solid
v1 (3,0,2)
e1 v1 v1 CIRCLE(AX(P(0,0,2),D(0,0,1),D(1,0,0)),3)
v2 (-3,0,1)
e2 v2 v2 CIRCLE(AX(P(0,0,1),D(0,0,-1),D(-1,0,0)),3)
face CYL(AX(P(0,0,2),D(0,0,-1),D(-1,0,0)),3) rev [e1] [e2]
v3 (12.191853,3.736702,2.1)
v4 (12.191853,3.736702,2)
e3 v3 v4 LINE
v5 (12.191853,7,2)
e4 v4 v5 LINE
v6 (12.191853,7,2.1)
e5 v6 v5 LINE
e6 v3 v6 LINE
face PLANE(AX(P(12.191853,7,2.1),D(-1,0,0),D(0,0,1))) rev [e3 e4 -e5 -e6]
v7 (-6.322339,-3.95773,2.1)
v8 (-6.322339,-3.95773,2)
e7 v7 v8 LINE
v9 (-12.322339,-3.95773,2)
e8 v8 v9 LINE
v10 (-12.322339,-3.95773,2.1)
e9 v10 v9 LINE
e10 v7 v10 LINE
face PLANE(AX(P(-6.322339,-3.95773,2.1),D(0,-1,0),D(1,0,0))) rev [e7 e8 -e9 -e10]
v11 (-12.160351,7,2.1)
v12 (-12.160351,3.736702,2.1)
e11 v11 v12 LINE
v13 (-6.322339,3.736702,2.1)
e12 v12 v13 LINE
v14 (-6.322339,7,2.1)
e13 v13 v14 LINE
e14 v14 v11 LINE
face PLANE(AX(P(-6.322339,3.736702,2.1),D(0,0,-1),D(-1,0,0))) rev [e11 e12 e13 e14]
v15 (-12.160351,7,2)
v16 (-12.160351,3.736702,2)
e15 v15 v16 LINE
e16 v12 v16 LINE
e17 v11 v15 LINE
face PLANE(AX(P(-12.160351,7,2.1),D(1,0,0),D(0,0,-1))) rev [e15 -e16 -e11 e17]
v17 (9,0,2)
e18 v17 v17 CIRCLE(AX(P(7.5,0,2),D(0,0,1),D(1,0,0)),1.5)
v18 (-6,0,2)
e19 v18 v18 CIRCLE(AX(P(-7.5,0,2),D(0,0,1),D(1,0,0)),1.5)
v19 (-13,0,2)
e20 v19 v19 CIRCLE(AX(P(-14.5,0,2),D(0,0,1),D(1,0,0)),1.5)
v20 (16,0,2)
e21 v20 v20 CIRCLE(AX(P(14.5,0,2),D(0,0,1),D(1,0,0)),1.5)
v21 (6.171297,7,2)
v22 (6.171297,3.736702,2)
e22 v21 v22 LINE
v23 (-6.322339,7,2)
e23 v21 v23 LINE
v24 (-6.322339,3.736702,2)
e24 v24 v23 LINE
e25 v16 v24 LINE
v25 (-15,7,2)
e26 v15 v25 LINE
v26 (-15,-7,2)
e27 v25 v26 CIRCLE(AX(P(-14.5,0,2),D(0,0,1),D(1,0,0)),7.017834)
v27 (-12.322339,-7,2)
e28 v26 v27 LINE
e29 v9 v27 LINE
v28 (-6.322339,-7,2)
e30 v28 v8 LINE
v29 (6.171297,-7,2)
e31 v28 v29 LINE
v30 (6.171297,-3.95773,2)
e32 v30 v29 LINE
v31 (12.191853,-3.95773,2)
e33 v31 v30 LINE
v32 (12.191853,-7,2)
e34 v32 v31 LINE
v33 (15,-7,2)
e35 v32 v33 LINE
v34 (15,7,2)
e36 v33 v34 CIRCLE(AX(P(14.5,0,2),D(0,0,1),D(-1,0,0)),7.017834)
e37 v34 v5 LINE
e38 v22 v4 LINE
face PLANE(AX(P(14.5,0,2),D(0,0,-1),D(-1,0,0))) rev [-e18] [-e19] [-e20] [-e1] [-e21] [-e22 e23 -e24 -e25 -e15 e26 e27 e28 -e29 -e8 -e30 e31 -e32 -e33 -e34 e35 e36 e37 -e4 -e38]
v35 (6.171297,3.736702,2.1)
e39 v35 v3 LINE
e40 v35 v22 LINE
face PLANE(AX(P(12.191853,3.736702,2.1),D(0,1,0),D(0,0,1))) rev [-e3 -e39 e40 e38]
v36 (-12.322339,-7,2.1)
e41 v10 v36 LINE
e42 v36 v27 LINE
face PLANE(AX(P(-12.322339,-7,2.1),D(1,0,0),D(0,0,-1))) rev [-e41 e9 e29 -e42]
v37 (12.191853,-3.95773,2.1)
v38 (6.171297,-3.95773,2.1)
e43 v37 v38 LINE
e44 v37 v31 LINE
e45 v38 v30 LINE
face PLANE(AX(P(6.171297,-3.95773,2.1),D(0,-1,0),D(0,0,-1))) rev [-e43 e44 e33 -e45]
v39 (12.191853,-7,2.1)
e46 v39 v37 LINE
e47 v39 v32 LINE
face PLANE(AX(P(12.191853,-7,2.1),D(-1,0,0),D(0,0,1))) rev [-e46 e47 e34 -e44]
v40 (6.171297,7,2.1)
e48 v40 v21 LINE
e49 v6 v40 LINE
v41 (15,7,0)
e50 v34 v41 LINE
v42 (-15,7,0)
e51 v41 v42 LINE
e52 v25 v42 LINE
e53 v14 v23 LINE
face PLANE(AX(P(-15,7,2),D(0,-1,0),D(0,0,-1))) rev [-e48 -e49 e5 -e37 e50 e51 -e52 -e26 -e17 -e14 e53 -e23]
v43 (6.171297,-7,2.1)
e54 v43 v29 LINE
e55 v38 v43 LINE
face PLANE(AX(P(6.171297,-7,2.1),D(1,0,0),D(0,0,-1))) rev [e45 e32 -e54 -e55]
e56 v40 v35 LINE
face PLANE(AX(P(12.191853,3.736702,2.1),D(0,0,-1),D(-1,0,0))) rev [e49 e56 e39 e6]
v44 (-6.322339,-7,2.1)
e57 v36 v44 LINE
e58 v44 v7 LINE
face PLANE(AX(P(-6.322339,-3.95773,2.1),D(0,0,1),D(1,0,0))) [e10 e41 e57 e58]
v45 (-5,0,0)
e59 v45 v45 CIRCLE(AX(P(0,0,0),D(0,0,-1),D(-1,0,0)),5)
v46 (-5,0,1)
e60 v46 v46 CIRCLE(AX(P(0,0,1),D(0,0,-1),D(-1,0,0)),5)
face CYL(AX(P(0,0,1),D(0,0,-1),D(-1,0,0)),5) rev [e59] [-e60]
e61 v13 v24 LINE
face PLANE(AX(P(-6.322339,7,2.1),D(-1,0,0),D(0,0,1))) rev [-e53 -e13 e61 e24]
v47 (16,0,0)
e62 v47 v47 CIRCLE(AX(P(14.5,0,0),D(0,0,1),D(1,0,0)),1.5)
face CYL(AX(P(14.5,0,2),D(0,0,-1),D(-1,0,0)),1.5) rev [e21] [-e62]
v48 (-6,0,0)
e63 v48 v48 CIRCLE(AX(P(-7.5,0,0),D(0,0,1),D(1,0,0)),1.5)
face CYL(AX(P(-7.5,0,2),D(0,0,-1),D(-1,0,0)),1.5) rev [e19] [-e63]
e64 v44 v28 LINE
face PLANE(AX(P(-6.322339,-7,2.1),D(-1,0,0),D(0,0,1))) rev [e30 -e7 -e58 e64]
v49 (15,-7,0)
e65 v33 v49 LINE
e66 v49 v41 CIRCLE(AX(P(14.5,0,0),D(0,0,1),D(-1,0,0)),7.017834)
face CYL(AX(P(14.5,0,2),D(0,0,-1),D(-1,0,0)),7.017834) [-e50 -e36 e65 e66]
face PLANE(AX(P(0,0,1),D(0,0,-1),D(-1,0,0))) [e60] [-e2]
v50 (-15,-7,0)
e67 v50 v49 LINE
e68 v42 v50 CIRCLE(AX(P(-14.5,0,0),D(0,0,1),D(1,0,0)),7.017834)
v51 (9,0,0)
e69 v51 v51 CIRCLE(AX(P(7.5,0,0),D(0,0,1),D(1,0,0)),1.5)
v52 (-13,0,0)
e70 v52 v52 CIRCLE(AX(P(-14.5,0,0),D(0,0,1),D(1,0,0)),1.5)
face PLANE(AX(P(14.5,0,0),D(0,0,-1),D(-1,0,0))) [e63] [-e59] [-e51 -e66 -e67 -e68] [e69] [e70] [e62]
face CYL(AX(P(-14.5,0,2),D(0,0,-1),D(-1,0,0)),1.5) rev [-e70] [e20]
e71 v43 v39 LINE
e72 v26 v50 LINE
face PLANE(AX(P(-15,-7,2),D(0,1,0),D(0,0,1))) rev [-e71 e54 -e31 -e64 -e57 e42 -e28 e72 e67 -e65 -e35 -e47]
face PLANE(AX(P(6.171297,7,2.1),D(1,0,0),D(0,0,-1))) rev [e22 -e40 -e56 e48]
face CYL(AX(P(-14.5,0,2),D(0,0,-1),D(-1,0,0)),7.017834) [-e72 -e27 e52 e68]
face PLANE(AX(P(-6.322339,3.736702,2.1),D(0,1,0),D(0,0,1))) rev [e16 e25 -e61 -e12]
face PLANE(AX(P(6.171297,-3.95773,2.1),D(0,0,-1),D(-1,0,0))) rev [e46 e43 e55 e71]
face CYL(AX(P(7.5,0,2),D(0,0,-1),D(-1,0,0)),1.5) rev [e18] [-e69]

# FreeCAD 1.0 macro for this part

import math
import FreeCAD as App
import Part
import Sketcher

doc = App.newDocument("Part")
params = doc.addObject("Spreadsheet::Sheet", "Params")
for row, (alias, value) in enumerate([
    ("sketch1_diameter", "3 mm"),
    ("sketch1_diameter2", "6 mm"),
    ("sketch1_width", "30 mm"),
    ("pad1_length", "2 mm"),
    ("sketch2_width", "6 mm"),
    ("pad2_length", "0.1 mm"),
    ("sketch3_diameter", "10 mm"),
    ("pocket1_length", "1 mm"),
], start=1):
    params.set(f"A{row}", alias)
    params.set(f"B{row}", "=" + value)
    params.setAlias(f"B{row}", alias)

body = doc.addObject("PartDesign::Body", "Body")

sketch1 = body.newObject("Sketcher::SketchObject", "Sketch")
sketch1.AttachmentSupport = (doc.getObject("XY_Plane"), [""])
sketch1.MapMode = "FlatFace"
sketch1.addGeometry([
    Part.LineSegment(App.Vector(-15, -7, 0), App.Vector(15, -7, 0)),
    Part.ArcOfCircle(Part.Circle(App.Vector(14.5, 0, 0), App.Vector(0, 0, 1), 7), math.radians(-86), math.radians(86)),
    Part.LineSegment(App.Vector(15, 7, 0), App.Vector(-15, 7, 0)),
    Part.ArcOfCircle(Part.Circle(App.Vector(-14.5, 0, 0), App.Vector(0, 0, 1), 7), math.radians(94), math.radians(266)),
    Part.Circle(App.Vector(-14.5, 0, 0), App.Vector(0, 0, 1), 1.5),
    Part.Circle(App.Vector(-7.5, 0, 0), App.Vector(0, 0, 1), 1.5),
    Part.Circle(App.Vector(0, 0, 0), App.Vector(0, 0, 1), 3),
    Part.Circle(App.Vector(7.5, 0, 0), App.Vector(0, 0, 1), 1.5),
    Part.Circle(App.Vector(14.5, 0, 0), App.Vector(0, 0, 1), 1.5),
], False)
sketch1.addConstraint([
    Sketcher.Constraint("Coincident", 0, 2, 1, 1),
    Sketcher.Constraint("Coincident", 1, 2, 2, 1),
    Sketcher.Constraint("Coincident", 2, 2, 3, 1),
    Sketcher.Constraint("Coincident", 3, 2, 0, 1),
    Sketcher.Constraint("Horizontal", 0),
    Sketcher.Constraint("Horizontal", 2),
    Sketcher.Constraint("Coincident", 6, 3, -1, 1),
    Sketcher.Constraint("Coincident", 4, 3, 3, 3),
    Sketcher.Constraint("Coincident", 8, 3, 1, 3),
    Sketcher.Constraint("Equal", 1, 3),
    Sketcher.Constraint("Equal", 4, 5),
    Sketcher.Constraint("Equal", 5, 7),
    Sketcher.Constraint("Equal", 7, 8),
    Sketcher.Constraint("Symmetric", 1, 3, 3, 3, -1, 1),
    Sketcher.Constraint("Symmetric", 5, 3, 7, 3, -1, 1),
    Sketcher.Constraint("Symmetric", 0, 2, 1, 2, -1),
    Sketcher.Constraint("PointOnObject", 5, 3, -1),
    Sketcher.Constraint("Diameter", 4, 3.0),
    Sketcher.Constraint("Diameter", 6, 6.0),
    Sketcher.Constraint("DistanceX", 0, 1, 0, 2, 30.0),
    Sketcher.Constraint("DistanceY", 0, 2, -1, 1, 7.0),
    Sketcher.Constraint("DistanceX", 3, 3, 1, 3, 29.0),
    Sketcher.Constraint("DistanceX", 3, 3, 5, 3, 7.0),
])
sketch1.setExpression("Constraints[17]", "Params.sketch1_diameter")
sketch1.setExpression("Constraints[18]", "Params.sketch1_diameter2")
sketch1.setExpression("Constraints[19]", "Params.sketch1_width")
pad1 = body.newObject("PartDesign::Pad", "Pad")
pad1.Profile = sketch1
pad1.setExpression("Length", "Params.pad1_length")

sketch2 = body.newObject("Sketcher::SketchObject", "Sketch001")
sketch2.AttachmentSupport = (doc.getObject("XY_Plane"), [""])
sketch2.MapMode = "FlatFace"
sketch2.AttachmentOffset = App.Placement(App.Vector(0, 0, 2), App.Rotation())
sketch2.addGeometry([
    Part.LineSegment(App.Vector(6.2, -4, 0), App.Vector(6.2, -7, 0)),
    Part.LineSegment(App.Vector(6.2, -7, 0), App.Vector(12.2, -7, 0)),
    Part.LineSegment(App.Vector(12.2, -7, 0), App.Vector(12.2, -4, 0)),
    Part.LineSegment(App.Vector(12.2, -4, 0), App.Vector(6.2, -4, 0)),
    Part.LineSegment(App.Vector(6.2, 7, 0), App.Vector(6.2, 3.7, 0)),
    Part.LineSegment(App.Vector(6.2, 3.7, 0), App.Vector(12.2, 3.7, 0)),
    Part.LineSegment(App.Vector(12.2, 3.7, 0), App.Vector(12.2, 7, 0)),
    Part.LineSegment(App.Vector(12.2, 7, 0), App.Vector(6.2, 7, 0)),
    Part.LineSegment(App.Vector(-12.3, -4, 0), App.Vector(-12.3, -7, 0)),
    Part.LineSegment(App.Vector(-12.3, -7, 0), App.Vector(-6.3, -7, 0)),
    Part.LineSegment(App.Vector(-6.3, -7, 0), App.Vector(-6.3, -4, 0)),
    Part.LineSegment(App.Vector(-6.3, -4, 0), App.Vector(-12.3, -4, 0)),
    Part.LineSegment(App.Vector(-12.2, 7, 0), App.Vector(-12.2, 3.7, 0)),
    Part.LineSegment(App.Vector(-12.2, 3.7, 0), App.Vector(-6.3, 3.7, 0)),
    Part.LineSegment(App.Vector(-6.3, 3.7, 0), App.Vector(-6.3, 7, 0)),
    Part.LineSegment(App.Vector(-6.3, 7, 0), App.Vector(-12.2, 7, 0)),
], False)
sketch2.addConstraint([
    Sketcher.Constraint("Coincident", 0, 2, 1, 1),
    Sketcher.Constraint("Coincident", 1, 2, 2, 1),
    Sketcher.Constraint("Coincident", 2, 2, 3, 1),
    Sketcher.Constraint("Coincident", 3, 2, 0, 1),
    Sketcher.Constraint("Coincident", 4, 2, 5, 1),
    Sketcher.Constraint("Coincident", 5, 2, 6, 1),
    Sketcher.Constraint("Coincident", 6, 2, 7, 1),
    Sketcher.Constraint("Coincident", 7, 2, 4, 1),
    Sketcher.Constraint("Coincident", 8, 2, 9, 1),
    Sketcher.Constraint("Coincident", 9, 2, 10, 1),
    Sketcher.Constraint("Coincident", 10, 2, 11, 1),
    Sketcher.Constraint("Coincident", 11, 2, 8, 1),
    Sketcher.Constraint("Coincident", 12, 2, 13, 1),
    Sketcher.Constraint("Coincident", 13, 2, 14, 1),
    Sketcher.Constraint("Coincident", 14, 2, 15, 1),
    Sketcher.Constraint("Coincident", 15, 2, 12, 1),
    Sketcher.Constraint("Vertical", 0),
    Sketcher.Constraint("Horizontal", 1),
    Sketcher.Constraint("Vertical", 2),
    Sketcher.Constraint("Horizontal", 3),
    Sketcher.Constraint("Vertical", 4),
    Sketcher.Constraint("Horizontal", 5),
    Sketcher.Constraint("Vertical", 6),
    Sketcher.Constraint("Horizontal", 7),
    Sketcher.Constraint("Vertical", 8),
    Sketcher.Constraint("Horizontal", 9),
    Sketcher.Constraint("Vertical", 10),
    Sketcher.Constraint("Horizontal", 11),
    Sketcher.Constraint("Vertical", 12),
    Sketcher.Constraint("Horizontal", 13),
    Sketcher.Constraint("Vertical", 14),
    Sketcher.Constraint("Horizontal", 15),
    Sketcher.Constraint("Symmetric", 1, 2, 6, 2, -1),
    Sketcher.Constraint("Symmetric", 9, 2, 14, 2, -1),
    Sketcher.Constraint("Horizontal", 1, 2, 8, 2),
    Sketcher.Constraint("Horizontal", 3, 2, 10, 2),
    Sketcher.Constraint("Horizontal", 5, 2, 12, 2),
    Sketcher.Constraint("Vertical", 3, 2, 4, 2),
    Sketcher.Constraint("DistanceX", 9, 1, 9, 2, 6.0),
    Sketcher.Constraint("DistanceY", 0, 2, -1, 1, 7.0),
    Sketcher.Constraint("DistanceX", 13, 1, 13, 2, 5.838012),
    Sketcher.Constraint("DistanceY", 0, 2, 0, 1, 3.04227),
    Sketcher.Constraint("DistanceX", 1, 1, 1, 2, 6.020556),
    Sketcher.Constraint("DistanceY", 4, 2, 4, 1, 3.263298),
    Sketcher.Constraint("DistanceX", 8, 2, -1, 1, 12.322339),
    Sketcher.Constraint("DistanceX", 8, 2, 1, 2, 24.514192),
])
sketch2.setExpression("Constraints[38]", "Params.sketch2_width")
pad2 = body.newObject("PartDesign::Pad", "Pad001")
pad2.Profile = sketch2
pad2.setExpression("Length", "Params.pad2_length")

sketch3 = body.newObject("Sketcher::SketchObject", "Sketch002")
sketch3.AttachmentSupport = (doc.getObject("XY_Plane"), [""])
sketch3.MapMode = "FlatFace"
sketch3.addGeometry(Part.Circle(App.Vector(0, 0, 0), App.Vector(0, 0, 1), 5), False)
sketch3.addConstraint([
    Sketcher.Constraint("Coincident", 0, 3, -1, 1),
    Sketcher.Constraint("Diameter", 0, 10.0),
])
sketch3.setExpression("Constraints[1]", "Params.sketch3_diameter")
pocket1 = body.newObject("PartDesign::Pocket", "Pocket")
pocket1.Profile = sketch3
pocket1.setExpression("Length", "Params.pocket1_length")
pocket1.Reversed = True

doc.recompute()
